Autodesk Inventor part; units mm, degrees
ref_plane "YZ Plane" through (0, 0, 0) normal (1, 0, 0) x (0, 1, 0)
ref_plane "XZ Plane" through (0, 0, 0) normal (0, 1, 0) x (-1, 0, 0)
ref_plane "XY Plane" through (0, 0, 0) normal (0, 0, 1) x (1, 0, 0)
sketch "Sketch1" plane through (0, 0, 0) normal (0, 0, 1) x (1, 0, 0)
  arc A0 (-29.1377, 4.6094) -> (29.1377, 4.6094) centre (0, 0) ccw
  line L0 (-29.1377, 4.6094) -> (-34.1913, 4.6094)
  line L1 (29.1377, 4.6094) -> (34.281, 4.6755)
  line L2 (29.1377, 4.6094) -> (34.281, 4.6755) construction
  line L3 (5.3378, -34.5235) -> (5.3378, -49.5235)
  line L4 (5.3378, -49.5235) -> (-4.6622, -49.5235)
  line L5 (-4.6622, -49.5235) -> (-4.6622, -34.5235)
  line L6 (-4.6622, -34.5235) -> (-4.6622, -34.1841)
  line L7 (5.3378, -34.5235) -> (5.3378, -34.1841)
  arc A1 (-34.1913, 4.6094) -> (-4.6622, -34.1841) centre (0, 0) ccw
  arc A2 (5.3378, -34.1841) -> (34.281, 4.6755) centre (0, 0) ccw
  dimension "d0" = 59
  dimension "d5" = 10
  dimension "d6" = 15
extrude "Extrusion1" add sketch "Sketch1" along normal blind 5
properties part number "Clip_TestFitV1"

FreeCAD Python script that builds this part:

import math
import FreeCAD as App
import Part
import Sketcher

V = App.Vector

doc = App.newDocument("Part")
body = doc.addObject("PartDesign::Body", "Body")

# Sketch on XY plane
sketch1 = body.newObject("Sketcher::SketchObject", "Sketch")
sketch1.AttachmentSupport = (doc.getObject("XY_Plane"), [""])
sketch1.MapMode = "FlatFace"
sketch1.addGeometry([
    Part.ArcOfCircle(Part.Circle(V(0, 0, 0), V(0, 0, 1), 30), math.radians(171), math.radians(369)),  # 0
    Part.LineSegment(V(-29, 5, 0), V(-34, 5, 0)),  # 1
    Part.ArcOfCircle(Part.Circle(V(0, 0, 0), V(0, 0, 1), 35), math.radians(172), math.radians(262)),  # 2
    Part.LineSegment(V(-5, -34, 0), V(-5, -50, 0)),  # 3
    Part.LineSegment(V(-5, -50, 0), V(5, -50, 0)),  # 4
    Part.LineSegment(V(5, -50, 0), V(5, -34, 0)),  # 5
    Part.ArcOfCircle(Part.Circle(V(0, 0, 0), V(0, 0, 1), 35), math.radians(-81), math.radians(8)),  # 6
    Part.LineSegment(V(34, 5, 0), V(29, 5, 0)),  # 7
], False)
sketch1.addConstraint([
    Sketcher.Constraint("Coincident", 0, 1, 1, 1),
    Sketcher.Constraint("Coincident", 1, 2, 2, 1),
    Sketcher.Constraint("Coincident", 2, 2, 3, 1),
    Sketcher.Constraint("Coincident", 3, 2, 4, 1),
    Sketcher.Constraint("Coincident", 4, 2, 5, 1),
    Sketcher.Constraint("Coincident", 5, 2, 6, 1),
    Sketcher.Constraint("Coincident", 6, 2, 7, 1),
    Sketcher.Constraint("Coincident", 7, 2, 0, 2),
    Sketcher.Constraint("Horizontal", 1),
    Sketcher.Constraint("Vertical", 3),
    Sketcher.Constraint("Horizontal", 4),
    Sketcher.Constraint("Vertical", 5),
    Sketcher.Constraint("Coincident", 0, 3, -1, 1),
    Sketcher.Constraint("Coincident", 2, 3, -1, 1),
    Sketcher.Constraint("Coincident", 6, 3, -1, 1),
    Sketcher.Constraint("Horizontal", 2, 2, 5, 2),
    Sketcher.Constraint("Horizontal", 1, 2, 7, 2),
    Sketcher.Constraint("Radius", 0, 29.5),
    Sketcher.Constraint("DistanceX", 4, 1, 4, 2, 10.0),
    Sketcher.Constraint("Radius", 2, 34.5006),
    Sketcher.Constraint("Radius", 6, 34.5983),
    Sketcher.Constraint("DistanceX", 5, 2, 7, 2, 23.8),
    Sketcher.Constraint("DistanceY", 3, 2, 3, 1, 15.3394),
    Sketcher.Constraint("DistanceX", -1, 1, 6, 2, 34.281),
])
pad1 = body.newObject("PartDesign::Pad", "Pad")
pad1.Profile = sketch1
pad1.Length = 5

doc.recompute()
